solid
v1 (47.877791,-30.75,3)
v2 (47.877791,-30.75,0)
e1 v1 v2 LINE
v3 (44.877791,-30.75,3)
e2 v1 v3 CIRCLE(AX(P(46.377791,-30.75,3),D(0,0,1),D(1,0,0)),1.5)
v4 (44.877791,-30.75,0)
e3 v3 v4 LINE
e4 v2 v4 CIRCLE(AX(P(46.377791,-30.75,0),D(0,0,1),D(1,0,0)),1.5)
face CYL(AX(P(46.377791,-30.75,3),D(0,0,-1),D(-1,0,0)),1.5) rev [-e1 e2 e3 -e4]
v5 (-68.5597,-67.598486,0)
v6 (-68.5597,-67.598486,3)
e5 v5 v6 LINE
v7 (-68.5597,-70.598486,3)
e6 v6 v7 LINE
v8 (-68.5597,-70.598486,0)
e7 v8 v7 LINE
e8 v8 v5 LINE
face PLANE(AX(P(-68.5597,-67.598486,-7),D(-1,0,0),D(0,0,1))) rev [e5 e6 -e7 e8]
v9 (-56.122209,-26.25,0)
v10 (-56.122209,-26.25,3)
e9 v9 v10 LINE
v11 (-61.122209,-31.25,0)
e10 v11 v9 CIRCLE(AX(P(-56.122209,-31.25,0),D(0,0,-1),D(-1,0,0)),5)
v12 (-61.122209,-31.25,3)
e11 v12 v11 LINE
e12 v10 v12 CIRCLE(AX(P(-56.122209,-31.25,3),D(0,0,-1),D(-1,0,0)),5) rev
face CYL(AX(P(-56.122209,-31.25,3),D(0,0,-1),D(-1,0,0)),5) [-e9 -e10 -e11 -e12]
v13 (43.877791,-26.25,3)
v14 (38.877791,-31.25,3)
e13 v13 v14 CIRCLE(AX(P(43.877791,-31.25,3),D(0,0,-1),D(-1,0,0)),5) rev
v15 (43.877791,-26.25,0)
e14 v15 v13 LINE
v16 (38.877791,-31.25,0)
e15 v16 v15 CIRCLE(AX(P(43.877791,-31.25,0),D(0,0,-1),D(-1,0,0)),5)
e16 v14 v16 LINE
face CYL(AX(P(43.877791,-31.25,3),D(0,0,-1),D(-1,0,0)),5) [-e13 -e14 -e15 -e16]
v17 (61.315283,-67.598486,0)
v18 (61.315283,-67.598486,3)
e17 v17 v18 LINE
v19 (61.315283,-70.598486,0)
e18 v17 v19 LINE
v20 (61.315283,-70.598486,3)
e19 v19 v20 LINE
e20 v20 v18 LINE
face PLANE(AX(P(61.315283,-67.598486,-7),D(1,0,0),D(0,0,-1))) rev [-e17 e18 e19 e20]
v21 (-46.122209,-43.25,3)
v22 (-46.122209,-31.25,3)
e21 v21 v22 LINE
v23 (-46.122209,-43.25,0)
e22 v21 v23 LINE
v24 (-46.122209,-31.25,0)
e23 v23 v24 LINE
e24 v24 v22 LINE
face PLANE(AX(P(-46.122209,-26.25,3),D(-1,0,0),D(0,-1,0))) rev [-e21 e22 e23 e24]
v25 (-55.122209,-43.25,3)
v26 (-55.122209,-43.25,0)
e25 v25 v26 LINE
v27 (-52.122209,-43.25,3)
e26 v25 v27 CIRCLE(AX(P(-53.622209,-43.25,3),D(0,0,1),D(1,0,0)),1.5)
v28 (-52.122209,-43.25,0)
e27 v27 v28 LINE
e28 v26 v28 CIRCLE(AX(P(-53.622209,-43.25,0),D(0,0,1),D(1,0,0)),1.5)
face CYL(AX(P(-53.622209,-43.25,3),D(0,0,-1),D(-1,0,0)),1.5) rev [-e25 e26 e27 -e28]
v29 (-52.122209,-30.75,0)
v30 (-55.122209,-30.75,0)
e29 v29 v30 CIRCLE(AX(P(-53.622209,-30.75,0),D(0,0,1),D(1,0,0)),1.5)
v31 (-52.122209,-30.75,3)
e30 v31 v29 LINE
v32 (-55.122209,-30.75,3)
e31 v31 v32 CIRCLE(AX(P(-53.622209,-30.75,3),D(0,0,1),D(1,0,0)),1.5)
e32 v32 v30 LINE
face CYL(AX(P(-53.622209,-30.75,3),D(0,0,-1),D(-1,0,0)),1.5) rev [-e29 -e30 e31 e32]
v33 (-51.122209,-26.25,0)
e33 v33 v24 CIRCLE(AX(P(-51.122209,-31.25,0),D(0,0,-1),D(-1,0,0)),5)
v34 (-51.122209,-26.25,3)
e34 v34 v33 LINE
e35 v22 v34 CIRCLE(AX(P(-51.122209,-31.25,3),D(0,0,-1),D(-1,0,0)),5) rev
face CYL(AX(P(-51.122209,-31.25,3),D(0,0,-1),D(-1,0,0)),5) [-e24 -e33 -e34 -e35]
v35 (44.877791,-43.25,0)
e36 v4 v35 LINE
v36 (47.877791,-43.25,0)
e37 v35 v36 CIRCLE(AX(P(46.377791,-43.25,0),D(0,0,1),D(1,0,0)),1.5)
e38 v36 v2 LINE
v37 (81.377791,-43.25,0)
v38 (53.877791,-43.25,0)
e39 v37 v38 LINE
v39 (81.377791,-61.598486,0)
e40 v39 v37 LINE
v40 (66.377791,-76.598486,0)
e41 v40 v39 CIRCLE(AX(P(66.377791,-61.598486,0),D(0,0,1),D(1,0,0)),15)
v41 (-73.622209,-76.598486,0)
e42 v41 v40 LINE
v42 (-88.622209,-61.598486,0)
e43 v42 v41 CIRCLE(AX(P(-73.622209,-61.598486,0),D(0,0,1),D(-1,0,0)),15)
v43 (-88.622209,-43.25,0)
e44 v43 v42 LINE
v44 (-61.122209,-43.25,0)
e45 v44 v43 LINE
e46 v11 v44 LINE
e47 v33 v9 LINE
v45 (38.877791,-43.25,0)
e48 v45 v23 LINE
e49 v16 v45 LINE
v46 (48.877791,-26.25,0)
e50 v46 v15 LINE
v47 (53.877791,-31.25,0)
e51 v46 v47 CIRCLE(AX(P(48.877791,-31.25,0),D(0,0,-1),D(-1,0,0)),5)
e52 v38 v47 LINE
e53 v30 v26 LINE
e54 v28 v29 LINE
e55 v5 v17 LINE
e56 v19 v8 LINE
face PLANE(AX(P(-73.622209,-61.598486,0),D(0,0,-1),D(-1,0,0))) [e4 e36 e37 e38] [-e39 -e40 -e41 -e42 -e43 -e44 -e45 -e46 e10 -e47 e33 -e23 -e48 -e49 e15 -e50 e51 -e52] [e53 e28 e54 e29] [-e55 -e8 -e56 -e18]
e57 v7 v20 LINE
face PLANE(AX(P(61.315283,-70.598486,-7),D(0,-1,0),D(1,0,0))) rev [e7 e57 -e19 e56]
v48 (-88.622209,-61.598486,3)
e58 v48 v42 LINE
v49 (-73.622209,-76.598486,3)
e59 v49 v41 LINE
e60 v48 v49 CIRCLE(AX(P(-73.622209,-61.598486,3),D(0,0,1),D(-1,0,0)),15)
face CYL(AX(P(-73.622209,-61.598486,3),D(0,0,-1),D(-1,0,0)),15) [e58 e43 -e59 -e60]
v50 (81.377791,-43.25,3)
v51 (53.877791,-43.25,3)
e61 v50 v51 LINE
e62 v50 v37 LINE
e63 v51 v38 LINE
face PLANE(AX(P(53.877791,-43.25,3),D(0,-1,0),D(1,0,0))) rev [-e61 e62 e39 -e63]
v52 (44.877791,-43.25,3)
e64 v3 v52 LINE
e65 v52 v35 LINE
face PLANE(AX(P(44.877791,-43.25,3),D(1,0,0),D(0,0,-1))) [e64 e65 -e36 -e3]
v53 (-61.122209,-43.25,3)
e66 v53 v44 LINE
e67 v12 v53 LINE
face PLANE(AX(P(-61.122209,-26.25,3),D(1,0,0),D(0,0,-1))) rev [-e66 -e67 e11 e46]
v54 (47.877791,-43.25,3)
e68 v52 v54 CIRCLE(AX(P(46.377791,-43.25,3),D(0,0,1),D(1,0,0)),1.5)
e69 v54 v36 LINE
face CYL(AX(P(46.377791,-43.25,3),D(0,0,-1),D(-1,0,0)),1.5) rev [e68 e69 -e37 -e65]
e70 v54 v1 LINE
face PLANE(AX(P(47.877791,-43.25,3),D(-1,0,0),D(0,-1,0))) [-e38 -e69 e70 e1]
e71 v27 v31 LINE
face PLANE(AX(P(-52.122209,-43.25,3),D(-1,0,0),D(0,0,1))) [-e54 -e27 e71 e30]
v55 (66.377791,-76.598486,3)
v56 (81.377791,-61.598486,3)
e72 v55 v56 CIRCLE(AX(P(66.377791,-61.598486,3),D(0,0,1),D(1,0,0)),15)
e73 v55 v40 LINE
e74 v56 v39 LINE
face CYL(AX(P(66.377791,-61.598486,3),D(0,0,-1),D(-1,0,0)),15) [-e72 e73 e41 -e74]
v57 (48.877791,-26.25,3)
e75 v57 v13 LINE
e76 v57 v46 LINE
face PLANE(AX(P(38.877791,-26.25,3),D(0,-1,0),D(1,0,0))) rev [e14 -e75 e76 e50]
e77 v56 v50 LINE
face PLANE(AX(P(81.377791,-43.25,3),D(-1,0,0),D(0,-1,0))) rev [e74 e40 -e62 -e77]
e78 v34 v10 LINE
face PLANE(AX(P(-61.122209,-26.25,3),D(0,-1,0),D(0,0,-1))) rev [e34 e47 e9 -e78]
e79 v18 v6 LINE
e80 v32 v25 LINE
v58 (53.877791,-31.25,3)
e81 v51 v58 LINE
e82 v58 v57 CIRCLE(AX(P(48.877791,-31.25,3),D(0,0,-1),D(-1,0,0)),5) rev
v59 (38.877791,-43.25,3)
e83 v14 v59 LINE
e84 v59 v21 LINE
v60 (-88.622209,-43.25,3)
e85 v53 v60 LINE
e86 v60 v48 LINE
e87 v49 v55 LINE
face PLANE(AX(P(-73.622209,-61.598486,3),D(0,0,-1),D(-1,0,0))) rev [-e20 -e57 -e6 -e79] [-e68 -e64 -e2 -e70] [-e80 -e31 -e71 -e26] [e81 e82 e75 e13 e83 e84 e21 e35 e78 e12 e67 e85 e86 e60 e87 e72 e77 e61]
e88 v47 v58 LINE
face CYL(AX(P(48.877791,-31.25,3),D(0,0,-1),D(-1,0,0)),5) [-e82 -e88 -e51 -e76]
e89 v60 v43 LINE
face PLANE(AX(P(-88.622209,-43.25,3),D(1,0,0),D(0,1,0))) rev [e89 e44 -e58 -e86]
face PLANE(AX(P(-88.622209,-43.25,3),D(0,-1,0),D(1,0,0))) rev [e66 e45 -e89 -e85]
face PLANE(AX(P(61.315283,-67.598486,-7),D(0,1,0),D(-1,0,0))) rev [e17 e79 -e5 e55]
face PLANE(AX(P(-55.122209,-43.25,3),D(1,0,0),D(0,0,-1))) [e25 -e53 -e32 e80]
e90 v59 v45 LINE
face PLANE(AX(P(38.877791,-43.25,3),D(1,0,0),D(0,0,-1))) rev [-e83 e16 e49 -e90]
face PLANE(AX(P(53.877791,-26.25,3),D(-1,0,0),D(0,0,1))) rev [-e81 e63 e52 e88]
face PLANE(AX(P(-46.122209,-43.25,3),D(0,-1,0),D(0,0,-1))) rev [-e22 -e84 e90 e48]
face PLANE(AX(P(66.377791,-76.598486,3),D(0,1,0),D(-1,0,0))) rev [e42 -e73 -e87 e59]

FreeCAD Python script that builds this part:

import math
import FreeCAD as App
import Part
import Sketcher


def edges_at(feature, points):
    """Names of the edges that pass closest to the given points."""
    edges = feature.Shape.Edges
    near = lambda p: min(range(len(edges)), key=lambda i: edges[i].distToShape(Part.Vertex(*p))[0])
    return sorted({f"Edge{near(p) + 1}" for p in points})


def add_polygon(sketch, points):
    """Adds a closed chain of lines whose ends are joined by coincident constraints."""
    first, n = sketch.GeometryCount, len(points)
    for a, b in zip(points, points[1:] + points[:1]):
        sketch.addGeometry(Part.LineSegment(App.Vector(*a, 0), App.Vector(*b, 0)), False)
    for i in range(n):
        sketch.addConstraint(Sketcher.Constraint("Coincident", first + i, 2, first + (i + 1) % n, 1))

doc = App.newDocument("Part")
params = doc.addObject("Spreadsheet::Sheet", "Params")
for row, (alias, value) in enumerate([
    ("sketch1_radius", "15 mm"),
    ("sketch1_radius2", "1.5 mm"),
    ("sketch1_width", "140 mm"),
    ("sketch1_width2", "15 mm"),
    ("sketch1_width3", "85 mm"),
    ("pad1_length", "3 mm"),
    ("fillet_radius", "5 mm"),
    ("sketch2_height", "3 mm"),
    ("pocket1_length", "10 mm"),
], start=1):
    params.set(f"A{row}", alias)
    params.set(f"B{row}", "=" + value)
    params.setAlias(f"B{row}", alias)

body = doc.addObject("PartDesign::Body", "Body")

sketch1 = body.newObject("Sketcher::SketchObject", "Sketch")
sketch1.AttachmentSupport = (doc.getObject("XY_Plane"), [""])
sketch1.MapMode = "FlatFace"
sketch1.addGeometry(Part.LineSegment(App.Vector(-61.1, -43.2, 0), App.Vector(-88.6, -43.2, 0)), False)
sketch1.addGeometry(Part.LineSegment(App.Vector(-88.6, -43.2, 0), App.Vector(-88.6, -61.6, 0)), False)
sketch1.addGeometry(Part.ArcOfCircle(Part.Circle(App.Vector(-73.6, -61.6, 0), App.Vector(0, 0, 1), 15), math.radians(-180), math.radians(-90)), False)
sketch1.addGeometry(Part.LineSegment(App.Vector(-73.6, -76.6, 0), App.Vector(66.4, -76.6, 0)), False)
sketch1.addGeometry(Part.ArcOfCircle(Part.Circle(App.Vector(66.4, -61.6, 0), App.Vector(0, 0, 1), 15), math.radians(-90), math.radians(0)), False)
sketch1.addGeometry(Part.LineSegment(App.Vector(81.4, -61.6, 0), App.Vector(81.4, -43.2, 0)), False)
sketch1.addGeometry(Part.LineSegment(App.Vector(81.4, -43.2, 0), App.Vector(53.9, -43.2, 0)), False)
sketch1.addGeometry(Part.LineSegment(App.Vector(53.9, -43.2, 0), App.Vector(53.9, -26.2, 0)), False)
sketch1.addGeometry(Part.LineSegment(App.Vector(53.9, -26.2, 0), App.Vector(38.9, -26.2, 0)), False)
sketch1.addGeometry(Part.LineSegment(App.Vector(38.9, -26.2, 0), App.Vector(38.9, -43.2, 0)), False)
sketch1.addGeometry(Part.LineSegment(App.Vector(38.9, -43.2, 0), App.Vector(-46.1, -43.2, 0)), False)
sketch1.addGeometry(Part.LineSegment(App.Vector(-46.1, -43.2, 0), App.Vector(-46.1, -26.2, 0)), False)
sketch1.addGeometry(Part.LineSegment(App.Vector(-46.1, -26.2, 0), App.Vector(-61.1, -26.2, 0)), False)
sketch1.addGeometry(Part.LineSegment(App.Vector(-61.1, -26.2, 0), App.Vector(-61.1, -43.2, 0)), False)
sketch1.addGeometry(Part.LineSegment(App.Vector(44.9, -43.2, 0), App.Vector(44.9, -30.8, 0)), False)
sketch1.addGeometry(Part.ArcOfCircle(Part.Circle(App.Vector(46.4, -30.8, 0), App.Vector(0, 0, 1), 1.5), math.radians(0), math.radians(180)), False)
sketch1.addGeometry(Part.LineSegment(App.Vector(47.9, -30.8, 0), App.Vector(47.9, -43.2, 0)), False)
sketch1.addGeometry(Part.ArcOfCircle(Part.Circle(App.Vector(46.4, -43.2, 0), App.Vector(0, 0, 1), 1.5), math.radians(180), math.radians(360)), False)
sketch1.addGeometry(Part.LineSegment(App.Vector(-55.1, -43.2, 0), App.Vector(-55.1, -30.8, 0)), False)
sketch1.addGeometry(Part.ArcOfCircle(Part.Circle(App.Vector(-53.6, -30.8, 0), App.Vector(0, 0, 1), 1.5), math.radians(0), math.radians(180)), False)
sketch1.addGeometry(Part.LineSegment(App.Vector(-52.1, -30.8, 0), App.Vector(-52.1, -43.2, 0)), False)
sketch1.addGeometry(Part.ArcOfCircle(Part.Circle(App.Vector(-53.6, -43.2, 0), App.Vector(0, 0, 1), 1.5), math.radians(180), math.radians(360)), False)
sketch1.addConstraint(Sketcher.Constraint("Coincident", 0, 2, 1, 1))
sketch1.addConstraint(Sketcher.Constraint("Tangent", 1, 2, 2, 1))
sketch1.addConstraint(Sketcher.Constraint("Tangent", 2, 2, 3, 1))
sketch1.addConstraint(Sketcher.Constraint("Tangent", 3, 2, 4, 1))
sketch1.addConstraint(Sketcher.Constraint("Tangent", 4, 2, 5, 1))
sketch1.addConstraint(Sketcher.Constraint("Coincident", 5, 2, 6, 1))
sketch1.addConstraint(Sketcher.Constraint("Coincident", 6, 2, 7, 1))
sketch1.addConstraint(Sketcher.Constraint("Coincident", 7, 2, 8, 1))
sketch1.addConstraint(Sketcher.Constraint("Coincident", 8, 2, 9, 1))
sketch1.addConstraint(Sketcher.Constraint("Coincident", 9, 2, 10, 1))
sketch1.addConstraint(Sketcher.Constraint("Coincident", 10, 2, 11, 1))
sketch1.addConstraint(Sketcher.Constraint("Coincident", 11, 2, 12, 1))
sketch1.addConstraint(Sketcher.Constraint("Coincident", 12, 2, 13, 1))
sketch1.addConstraint(Sketcher.Constraint("Coincident", 13, 2, 0, 1))
sketch1.addConstraint(Sketcher.Constraint("Tangent", 14, 2, 15, 2))
sketch1.addConstraint(Sketcher.Constraint("Tangent", 15, 1, 16, 1))
sketch1.addConstraint(Sketcher.Constraint("Tangent", 16, 2, 17, 2))
sketch1.addConstraint(Sketcher.Constraint("Tangent", 17, 1, 14, 1))
sketch1.addConstraint(Sketcher.Constraint("Tangent", 18, 2, 19, 2))
sketch1.addConstraint(Sketcher.Constraint("Tangent", 19, 1, 20, 1))
sketch1.addConstraint(Sketcher.Constraint("Tangent", 20, 2, 21, 2))
sketch1.addConstraint(Sketcher.Constraint("Tangent", 21, 1, 18, 1))
sketch1.addConstraint(Sketcher.Constraint("Horizontal", 0))
sketch1.addConstraint(Sketcher.Constraint("Vertical", 1))
sketch1.addConstraint(Sketcher.Constraint("Horizontal", 3))
sketch1.addConstraint(Sketcher.Constraint("Vertical", 5))
sketch1.addConstraint(Sketcher.Constraint("Horizontal", 6))
sketch1.addConstraint(Sketcher.Constraint("Vertical", 7))
sketch1.addConstraint(Sketcher.Constraint("Horizontal", 8))
sketch1.addConstraint(Sketcher.Constraint("Vertical", 9))
sketch1.addConstraint(Sketcher.Constraint("Horizontal", 10))
sketch1.addConstraint(Sketcher.Constraint("Vertical", 11))
sketch1.addConstraint(Sketcher.Constraint("Horizontal", 12))
sketch1.addConstraint(Sketcher.Constraint("Vertical", 13))
sketch1.addConstraint(Sketcher.Constraint("Vertical", 14))
sketch1.addConstraint(Sketcher.Constraint("Vertical", 16))
sketch1.addConstraint(Sketcher.Constraint("Vertical", 18))
sketch1.addConstraint(Sketcher.Constraint("Vertical", 20))
sketch1.addConstraint(Sketcher.Constraint("Equal", 2, 4))
sketch1.addConstraint(Sketcher.Constraint("Equal", 17, 19))
sketch1.addConstraint(Sketcher.Constraint("Horizontal", 15, 3, 19, 3))
sketch1.addConstraint(Sketcher.Constraint("Horizontal", 17, 3, 21, 3))
sketch1.addConstraint(Sketcher.Constraint("Horizontal", 21, 3, 0, 2))
sketch1.addConstraint(Sketcher.Constraint("Horizontal", 0, 2, 5, 2))
sketch1.addConstraint(Sketcher.Constraint("Horizontal", 6, 2, 9, 2))
sketch1.addConstraint(Sketcher.Constraint("Horizontal", 8, 2, 11, 2))
sketch1.addConstraint(Sketcher.Constraint("Equal", 0, 6))
sketch1.addConstraint(Sketcher.Constraint("Equal", 8, 12))
sketch1.addConstraint(Sketcher.Constraint("Radius", 2, 15.0))
sketch1.addConstraint(Sketcher.Constraint("Radius", 15, 1.5))
sketch1.addConstraint(Sketcher.Constraint("DistanceX", 3, 1, 3, 2, 140.0))
sketch1.addConstraint(Sketcher.Constraint("DistanceX", 8, 2, 8, 1, 15.0))
sketch1.addConstraint(Sketcher.Constraint("DistanceX", 10, 2, 10, 1, 85.0))
sketch1.addConstraint(Sketcher.Constraint("DistanceY", 7, 1, 7, 2, 17.0))
sketch1.addConstraint(Sketcher.Constraint("DistanceY", 14, 1, 14, 2, 12.5))
sketch1.addConstraint(Sketcher.Constraint("DistanceX", 15, 3, 4, 3, 20.0))
sketch1.addConstraint(Sketcher.Constraint("DistanceX", 2, 3, 19, 3, 20.0))
sketch1.addConstraint(Sketcher.Constraint("DistanceY", 15, 3, -1, 1, 30.75))
sketch1.addConstraint(Sketcher.Constraint("DistanceY", 1, 2, 1, 1, 18.348486))
sketch1.addConstraint(Sketcher.Constraint("DistanceX", 2, 3, -1, 1, 73.622209))
sketch1.setExpression("Constraints[48]", "Params.sketch1_radius")
sketch1.setExpression("Constraints[49]", "Params.sketch1_radius2")
sketch1.setExpression("Constraints[50]", "Params.sketch1_width")
sketch1.setExpression("Constraints[51]", "Params.sketch1_width2")
sketch1.setExpression("Constraints[52]", "Params.sketch1_width3")
pad1 = body.newObject("PartDesign::Pad", "Pad")
pad1.Profile = sketch1
pad1.setExpression("Length", "Params.pad1_length")
doc.recompute()

fillet = body.newObject("PartDesign::Fillet", "Fillet")
fillet.Base = (pad1, edges_at(pad1, [
    (-61.122, -26.25, 1.5),
    (-46.122, -26.25, 1.5),
    (38.878, -26.25, 1.5),
    (53.878, -26.25, 1.5),
]))
fillet.setExpression("Radius", "Params.fillet_radius")

sketch2 = body.newObject("Sketcher::SketchObject", "Sketch001")
sketch2.AttachmentSupport = (doc.getObject("XY_Plane"), [""])
sketch2.MapMode = "FlatFace"
sketch2.AttachmentOffset = App.Placement(App.Vector(0, 0, 3), App.Rotation())
add_polygon(sketch2, [(-68.6, -67.6), (-68.6, -70.6), (61.3, -70.6), (61.3, -67.6)])
sketch2.addConstraint(Sketcher.Constraint("Vertical", 0))
sketch2.addConstraint(Sketcher.Constraint("Horizontal", 1))
sketch2.addConstraint(Sketcher.Constraint("Vertical", 2))
sketch2.addConstraint(Sketcher.Constraint("Horizontal", 3))
sketch2.addConstraint(Sketcher.Constraint("DistanceY", 0, 2, 0, 1, 3.0))
sketch2.addConstraint(Sketcher.Constraint("DistanceX", 0, 2, -1, 1, 68.5597))
sketch2.addConstraint(Sketcher.Constraint("DistanceX", 1, 1, 1, 2, 129.874984))
sketch2.addConstraint(Sketcher.Constraint("DistanceY", 0, 2, -1, 1, 70.598486))
sketch2.setExpression("Constraints[8]", "Params.sketch2_height")
pocket1 = body.newObject("PartDesign::Pocket", "Pocket")
pocket1.Profile = sketch2
pocket1.setExpression("Length", "Params.pocket1_length")

doc.recompute()
